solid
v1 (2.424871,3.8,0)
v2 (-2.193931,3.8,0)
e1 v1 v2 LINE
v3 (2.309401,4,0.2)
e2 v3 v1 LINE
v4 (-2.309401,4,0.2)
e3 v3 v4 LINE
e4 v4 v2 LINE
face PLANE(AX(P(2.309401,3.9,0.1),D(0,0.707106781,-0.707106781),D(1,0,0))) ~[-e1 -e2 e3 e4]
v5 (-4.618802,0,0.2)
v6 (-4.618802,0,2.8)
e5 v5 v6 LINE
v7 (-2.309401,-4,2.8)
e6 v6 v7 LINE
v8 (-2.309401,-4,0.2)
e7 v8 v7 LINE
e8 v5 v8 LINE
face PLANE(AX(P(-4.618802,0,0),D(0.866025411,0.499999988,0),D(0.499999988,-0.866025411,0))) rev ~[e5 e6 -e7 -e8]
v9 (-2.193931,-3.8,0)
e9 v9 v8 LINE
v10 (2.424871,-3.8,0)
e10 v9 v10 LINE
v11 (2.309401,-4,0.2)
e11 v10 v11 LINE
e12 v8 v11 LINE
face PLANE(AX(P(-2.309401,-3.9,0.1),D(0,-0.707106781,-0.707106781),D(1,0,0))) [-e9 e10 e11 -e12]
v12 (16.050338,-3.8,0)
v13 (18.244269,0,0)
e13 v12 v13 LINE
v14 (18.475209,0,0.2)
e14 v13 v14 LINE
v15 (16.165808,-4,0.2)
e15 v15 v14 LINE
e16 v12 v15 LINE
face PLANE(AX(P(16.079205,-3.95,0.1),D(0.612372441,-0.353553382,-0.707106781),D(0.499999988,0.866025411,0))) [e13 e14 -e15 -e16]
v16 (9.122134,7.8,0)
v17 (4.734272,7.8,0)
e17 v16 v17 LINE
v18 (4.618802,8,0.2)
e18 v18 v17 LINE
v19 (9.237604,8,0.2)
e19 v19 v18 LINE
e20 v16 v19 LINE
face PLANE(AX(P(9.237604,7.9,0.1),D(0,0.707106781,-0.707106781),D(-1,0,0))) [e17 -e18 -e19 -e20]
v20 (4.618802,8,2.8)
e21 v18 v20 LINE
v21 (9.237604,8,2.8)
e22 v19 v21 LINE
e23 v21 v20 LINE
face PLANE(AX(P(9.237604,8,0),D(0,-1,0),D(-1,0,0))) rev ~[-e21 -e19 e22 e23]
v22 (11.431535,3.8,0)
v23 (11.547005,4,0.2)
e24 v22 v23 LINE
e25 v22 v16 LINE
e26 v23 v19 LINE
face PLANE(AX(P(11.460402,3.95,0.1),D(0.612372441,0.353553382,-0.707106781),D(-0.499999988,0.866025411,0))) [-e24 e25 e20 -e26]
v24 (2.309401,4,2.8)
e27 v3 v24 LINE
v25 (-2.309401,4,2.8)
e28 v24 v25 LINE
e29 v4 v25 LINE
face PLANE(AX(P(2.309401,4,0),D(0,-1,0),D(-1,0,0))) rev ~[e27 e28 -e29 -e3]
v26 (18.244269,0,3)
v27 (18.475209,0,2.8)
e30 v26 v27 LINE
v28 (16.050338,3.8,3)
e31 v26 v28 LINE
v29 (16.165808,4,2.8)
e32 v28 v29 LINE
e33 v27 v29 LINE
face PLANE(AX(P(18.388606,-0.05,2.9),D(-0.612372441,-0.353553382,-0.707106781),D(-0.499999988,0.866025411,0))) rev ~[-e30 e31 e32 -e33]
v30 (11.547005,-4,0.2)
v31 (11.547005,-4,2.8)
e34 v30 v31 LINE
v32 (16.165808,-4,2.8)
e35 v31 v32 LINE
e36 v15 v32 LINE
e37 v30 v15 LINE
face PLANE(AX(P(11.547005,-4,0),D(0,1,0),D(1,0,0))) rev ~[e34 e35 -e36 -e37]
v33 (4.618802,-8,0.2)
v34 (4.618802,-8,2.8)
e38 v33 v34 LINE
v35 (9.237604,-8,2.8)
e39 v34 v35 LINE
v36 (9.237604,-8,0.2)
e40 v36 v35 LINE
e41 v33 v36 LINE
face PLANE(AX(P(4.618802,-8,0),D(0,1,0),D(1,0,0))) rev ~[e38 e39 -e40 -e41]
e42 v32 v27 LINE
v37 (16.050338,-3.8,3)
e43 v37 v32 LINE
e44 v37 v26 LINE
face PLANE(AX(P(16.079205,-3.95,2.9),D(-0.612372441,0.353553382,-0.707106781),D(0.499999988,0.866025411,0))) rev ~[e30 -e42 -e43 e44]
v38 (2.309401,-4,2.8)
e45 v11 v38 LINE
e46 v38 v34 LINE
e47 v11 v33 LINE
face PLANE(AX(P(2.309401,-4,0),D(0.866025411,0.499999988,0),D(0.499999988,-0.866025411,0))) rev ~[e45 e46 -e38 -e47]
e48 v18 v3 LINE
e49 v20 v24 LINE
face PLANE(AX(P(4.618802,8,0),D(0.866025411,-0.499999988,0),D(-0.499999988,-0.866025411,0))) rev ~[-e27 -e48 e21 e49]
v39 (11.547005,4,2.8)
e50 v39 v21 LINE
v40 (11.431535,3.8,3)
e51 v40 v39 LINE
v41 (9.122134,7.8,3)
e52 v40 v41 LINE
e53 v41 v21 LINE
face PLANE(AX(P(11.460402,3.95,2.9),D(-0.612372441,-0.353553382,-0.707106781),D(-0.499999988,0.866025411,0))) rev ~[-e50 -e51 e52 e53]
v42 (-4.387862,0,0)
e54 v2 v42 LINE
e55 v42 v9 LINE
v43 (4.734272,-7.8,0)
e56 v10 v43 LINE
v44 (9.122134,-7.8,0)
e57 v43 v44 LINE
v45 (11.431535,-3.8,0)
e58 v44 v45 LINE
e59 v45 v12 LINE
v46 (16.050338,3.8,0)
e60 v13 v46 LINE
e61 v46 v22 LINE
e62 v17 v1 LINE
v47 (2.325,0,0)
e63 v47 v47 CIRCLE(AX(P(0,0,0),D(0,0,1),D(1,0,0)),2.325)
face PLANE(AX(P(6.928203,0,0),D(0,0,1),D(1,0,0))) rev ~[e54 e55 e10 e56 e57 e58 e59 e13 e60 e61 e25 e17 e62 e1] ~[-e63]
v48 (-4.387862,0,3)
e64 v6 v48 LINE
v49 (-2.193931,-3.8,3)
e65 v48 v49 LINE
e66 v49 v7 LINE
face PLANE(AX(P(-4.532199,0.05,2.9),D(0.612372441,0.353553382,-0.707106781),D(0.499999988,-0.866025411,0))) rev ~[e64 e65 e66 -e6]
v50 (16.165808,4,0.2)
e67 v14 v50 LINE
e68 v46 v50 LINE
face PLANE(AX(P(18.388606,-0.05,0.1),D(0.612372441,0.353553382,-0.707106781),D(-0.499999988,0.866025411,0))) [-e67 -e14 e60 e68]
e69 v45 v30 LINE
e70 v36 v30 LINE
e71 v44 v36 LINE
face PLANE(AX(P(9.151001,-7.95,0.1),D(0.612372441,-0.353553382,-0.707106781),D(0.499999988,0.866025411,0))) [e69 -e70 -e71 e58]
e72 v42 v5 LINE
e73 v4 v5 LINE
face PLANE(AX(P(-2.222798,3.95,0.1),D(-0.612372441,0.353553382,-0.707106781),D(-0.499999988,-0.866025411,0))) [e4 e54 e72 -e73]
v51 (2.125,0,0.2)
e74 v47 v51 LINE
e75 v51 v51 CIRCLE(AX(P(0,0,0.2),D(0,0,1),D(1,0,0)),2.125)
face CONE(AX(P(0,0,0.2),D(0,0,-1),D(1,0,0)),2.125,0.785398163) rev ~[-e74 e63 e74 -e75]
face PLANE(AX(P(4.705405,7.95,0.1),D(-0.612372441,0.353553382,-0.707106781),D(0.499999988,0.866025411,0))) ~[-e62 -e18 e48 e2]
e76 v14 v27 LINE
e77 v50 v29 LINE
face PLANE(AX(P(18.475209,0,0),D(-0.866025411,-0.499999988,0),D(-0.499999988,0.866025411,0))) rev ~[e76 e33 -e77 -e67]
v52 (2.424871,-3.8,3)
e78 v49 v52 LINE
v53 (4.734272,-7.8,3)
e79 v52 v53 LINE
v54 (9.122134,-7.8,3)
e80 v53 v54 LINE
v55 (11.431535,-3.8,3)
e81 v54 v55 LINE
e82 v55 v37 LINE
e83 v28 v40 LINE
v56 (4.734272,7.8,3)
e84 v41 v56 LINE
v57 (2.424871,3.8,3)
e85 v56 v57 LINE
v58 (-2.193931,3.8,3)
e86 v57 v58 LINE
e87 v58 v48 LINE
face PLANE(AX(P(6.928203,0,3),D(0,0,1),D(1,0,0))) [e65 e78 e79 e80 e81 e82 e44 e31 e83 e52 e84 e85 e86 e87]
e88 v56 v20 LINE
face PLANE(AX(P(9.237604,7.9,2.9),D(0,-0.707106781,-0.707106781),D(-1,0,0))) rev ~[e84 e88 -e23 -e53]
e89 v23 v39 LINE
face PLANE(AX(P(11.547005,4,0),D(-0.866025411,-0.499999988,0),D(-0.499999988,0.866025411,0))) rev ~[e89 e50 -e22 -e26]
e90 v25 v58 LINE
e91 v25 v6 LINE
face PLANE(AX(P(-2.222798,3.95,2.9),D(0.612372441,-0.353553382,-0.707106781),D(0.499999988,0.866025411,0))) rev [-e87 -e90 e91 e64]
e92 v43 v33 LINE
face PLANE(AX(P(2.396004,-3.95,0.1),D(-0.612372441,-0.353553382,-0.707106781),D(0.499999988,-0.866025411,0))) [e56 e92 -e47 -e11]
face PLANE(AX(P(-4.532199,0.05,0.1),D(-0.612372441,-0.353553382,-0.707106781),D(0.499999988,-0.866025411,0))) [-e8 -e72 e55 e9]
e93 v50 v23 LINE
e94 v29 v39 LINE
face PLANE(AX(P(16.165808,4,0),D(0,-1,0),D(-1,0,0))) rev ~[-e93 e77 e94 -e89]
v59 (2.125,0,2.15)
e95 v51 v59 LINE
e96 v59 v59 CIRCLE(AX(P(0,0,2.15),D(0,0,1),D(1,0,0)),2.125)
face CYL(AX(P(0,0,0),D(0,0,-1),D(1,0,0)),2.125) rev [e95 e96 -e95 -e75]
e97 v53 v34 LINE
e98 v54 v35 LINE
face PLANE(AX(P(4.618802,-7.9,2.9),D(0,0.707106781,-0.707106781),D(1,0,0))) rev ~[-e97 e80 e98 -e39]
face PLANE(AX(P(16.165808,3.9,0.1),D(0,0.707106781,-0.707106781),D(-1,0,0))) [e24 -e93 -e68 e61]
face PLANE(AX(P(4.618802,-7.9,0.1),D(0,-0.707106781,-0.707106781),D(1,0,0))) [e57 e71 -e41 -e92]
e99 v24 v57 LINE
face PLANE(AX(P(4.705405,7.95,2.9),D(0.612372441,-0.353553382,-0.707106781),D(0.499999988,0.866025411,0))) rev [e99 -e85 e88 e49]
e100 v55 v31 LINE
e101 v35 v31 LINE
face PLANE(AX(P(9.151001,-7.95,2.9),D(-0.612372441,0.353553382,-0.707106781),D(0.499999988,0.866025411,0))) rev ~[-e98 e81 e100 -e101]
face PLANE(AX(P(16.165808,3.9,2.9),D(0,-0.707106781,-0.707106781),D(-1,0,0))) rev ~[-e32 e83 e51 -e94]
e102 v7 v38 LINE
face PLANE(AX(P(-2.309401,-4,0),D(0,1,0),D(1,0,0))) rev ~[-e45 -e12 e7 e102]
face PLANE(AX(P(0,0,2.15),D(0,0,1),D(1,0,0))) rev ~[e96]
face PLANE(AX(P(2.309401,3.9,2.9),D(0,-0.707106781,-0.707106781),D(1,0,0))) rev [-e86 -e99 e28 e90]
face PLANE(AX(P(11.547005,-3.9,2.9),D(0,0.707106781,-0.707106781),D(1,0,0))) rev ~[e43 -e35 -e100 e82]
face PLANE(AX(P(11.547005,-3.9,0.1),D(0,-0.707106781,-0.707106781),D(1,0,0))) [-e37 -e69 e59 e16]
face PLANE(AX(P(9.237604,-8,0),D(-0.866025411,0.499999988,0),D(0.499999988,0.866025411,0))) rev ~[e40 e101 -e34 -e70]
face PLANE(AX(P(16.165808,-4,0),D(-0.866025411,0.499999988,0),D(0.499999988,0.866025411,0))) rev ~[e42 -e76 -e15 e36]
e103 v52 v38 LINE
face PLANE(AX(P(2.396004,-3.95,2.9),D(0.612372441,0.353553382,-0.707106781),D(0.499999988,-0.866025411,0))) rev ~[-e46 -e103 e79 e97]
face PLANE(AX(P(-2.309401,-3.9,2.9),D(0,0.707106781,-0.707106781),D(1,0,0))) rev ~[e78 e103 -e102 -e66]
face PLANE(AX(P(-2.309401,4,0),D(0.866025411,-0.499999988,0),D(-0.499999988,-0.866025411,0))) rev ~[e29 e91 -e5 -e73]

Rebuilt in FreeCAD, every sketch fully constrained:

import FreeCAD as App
import Part
import Sketcher

V = App.Vector
Q = App.Units.Quantity


def edges_at(feature, points):
    """Names of the edges that pass closest to the given points."""
    edges = feature.Shape.Edges
    near = lambda p: min(range(len(edges)), key=lambda i: edges[i].distToShape(Part.Vertex(*p))[0])
    return sorted({f"Edge{near(p) + 1}" for p in points})


def add_polygon(sketch, points):
    """Adds a closed chain of lines whose ends are joined by coincident constraints."""
    first, n = sketch.GeometryCount, len(points)
    for a, b in zip(points, points[1:] + points[:1]):
        sketch.addGeometry(Part.LineSegment(App.Vector(*a, 0), App.Vector(*b, 0)), False)
    for i in range(n):
        sketch.addConstraint(Sketcher.Constraint("Coincident", first + i, 2, first + (i + 1) % n, 1))

doc = App.newDocument("Part")
body = doc.addObject("PartDesign::Body", "Body")

# Sketch on XY plane
sketch1 = body.newObject("Sketcher::SketchObject", "Sketch")
sketch1.AttachmentSupport = (doc.getObject("XY_Plane"), [""])
sketch1.MapMode = "FlatFace"
add_polygon(sketch1, [(2.3, 4), (-2.3, 4), (-4.6, 0), (-2.3, -4), (2.3, -4), (4.6, -8), (9.2, -8), (11.5, -4), (16.2, -4), (18.5, 0), (16.2, 4), (11.5, 4), (9.2, 8), (4.6, 8)])  # lines 0-13
sketch1.addConstraint([
    Sketcher.Constraint("Horizontal", 0),
    Sketcher.Constraint("Horizontal", 3),
    Sketcher.Constraint("Horizontal", 5),
    Sketcher.Constraint("Horizontal", 7),
    Sketcher.Constraint("Horizontal", 10),
    Sketcher.Constraint("Horizontal", 12),
    Sketcher.Constraint("Symmetric", 0, 2, 3, 2, -1, 1),
    Sketcher.Constraint("Symmetric", 7, 2, 9, 2, -1),
    Sketcher.Constraint("Symmetric", 5, 2, 11, 2, -1),
    Sketcher.Constraint("PointOnObject", 1, 2, -1),
    Sketcher.Constraint("PointOnObject", 8, 2, -1),
    Sketcher.Constraint("Parallel", 2, 4),
    Sketcher.Constraint("Parallel", 1, 6),
    Sketcher.Constraint("Parallel", 6, 8),
    Sketcher.Constraint("Parallel", 4, 9),
    Sketcher.Constraint("Parallel", 9, 11),
    Sketcher.Constraint("Parallel", 8, 13),
    Sketcher.Constraint("Horizontal", 3, 2, 6, 2),
    Sketcher.Constraint("Vertical", 4, 2, 12, 2),
    Sketcher.Constraint("Equal", 3, 5),
    Sketcher.Constraint("Equal", 5, 7),
    Sketcher.Constraint("Equal", 2, 4),
    Sketcher.Constraint("Angle", 1, Q("-119.999999 deg")),
    Sketcher.Constraint("DistanceY", -1, 1, 0, 2, 4.0),
    Sketcher.Constraint("DistanceX", 0, 2, 0, 1, 4.618802),
])
pad1 = body.newObject("PartDesign::Pad", "Pad")
pad1.Profile = sketch1
pad1.Length = 3

# Sketch on XY plane
sketch2 = body.newObject("Sketcher::SketchObject", "Sketch001")
sketch2.AttachmentSupport = (doc.getObject("XY_Plane"), [""])
sketch2.MapMode = "FlatFace"
sketch2.addGeometry(Part.Circle(V(0, 0, 0), V(0, 0, 1), 2.1), False)
sketch2.addConstraint([
    Sketcher.Constraint("Coincident", 0, 3, -1, 1),
    Sketcher.Constraint("Diameter", 0, 4.25),
])
pocket1 = body.newObject("PartDesign::Pocket", "Pocket")
pocket1.Profile = sketch2
pocket1.Length = 2.15
pocket1.Reversed = True
doc.recompute()

chamfer = body.newObject("PartDesign::Chamfer", "Chamfer")
chamfer.Base = (pocket1, edges_at(pocket1, [
    (0, 4, 3),
    (-3.464, 2, 3),
    (-3.464, -2, 3),
    (0, -4, 3),
    (3.464, -6, 3),
    (6.928, -8, 3),
    (10.392, -6, 3),
    (13.856, -4, 3),
    (17.321, -2, 3),
    (17.321, 2, 3),
    (13.856, 4, 3),
    (10.392, 6, 3),
    (6.928, 8, 3),
    (3.464, 6, 3),
]))
chamfer.Size = 0.2
doc.recompute()

chamfer2 = body.newObject("PartDesign::Chamfer", "Chamfer001")
chamfer2.Base = (chamfer, edges_at(chamfer, [
    (0, 4, 0),
    (3.464, 6, 0),
    (-3.464, 2, 0),
    (6.928, 8, 0),
    (-3.464, -2, 0),
    (10.392, 6, 0),
    (0, -4, 0),
    (13.856, 4, 0),
    (3.464, -6, 0),
    (17.321, 2, 0),
    (6.928, -8, 0),
    (17.321, -2, 0),
    (10.392, -6, 0),
    (13.856, -4, 0),
    (-2.125, 0, 0),
]))
chamfer2.Size = 0.2

doc.recompute()
